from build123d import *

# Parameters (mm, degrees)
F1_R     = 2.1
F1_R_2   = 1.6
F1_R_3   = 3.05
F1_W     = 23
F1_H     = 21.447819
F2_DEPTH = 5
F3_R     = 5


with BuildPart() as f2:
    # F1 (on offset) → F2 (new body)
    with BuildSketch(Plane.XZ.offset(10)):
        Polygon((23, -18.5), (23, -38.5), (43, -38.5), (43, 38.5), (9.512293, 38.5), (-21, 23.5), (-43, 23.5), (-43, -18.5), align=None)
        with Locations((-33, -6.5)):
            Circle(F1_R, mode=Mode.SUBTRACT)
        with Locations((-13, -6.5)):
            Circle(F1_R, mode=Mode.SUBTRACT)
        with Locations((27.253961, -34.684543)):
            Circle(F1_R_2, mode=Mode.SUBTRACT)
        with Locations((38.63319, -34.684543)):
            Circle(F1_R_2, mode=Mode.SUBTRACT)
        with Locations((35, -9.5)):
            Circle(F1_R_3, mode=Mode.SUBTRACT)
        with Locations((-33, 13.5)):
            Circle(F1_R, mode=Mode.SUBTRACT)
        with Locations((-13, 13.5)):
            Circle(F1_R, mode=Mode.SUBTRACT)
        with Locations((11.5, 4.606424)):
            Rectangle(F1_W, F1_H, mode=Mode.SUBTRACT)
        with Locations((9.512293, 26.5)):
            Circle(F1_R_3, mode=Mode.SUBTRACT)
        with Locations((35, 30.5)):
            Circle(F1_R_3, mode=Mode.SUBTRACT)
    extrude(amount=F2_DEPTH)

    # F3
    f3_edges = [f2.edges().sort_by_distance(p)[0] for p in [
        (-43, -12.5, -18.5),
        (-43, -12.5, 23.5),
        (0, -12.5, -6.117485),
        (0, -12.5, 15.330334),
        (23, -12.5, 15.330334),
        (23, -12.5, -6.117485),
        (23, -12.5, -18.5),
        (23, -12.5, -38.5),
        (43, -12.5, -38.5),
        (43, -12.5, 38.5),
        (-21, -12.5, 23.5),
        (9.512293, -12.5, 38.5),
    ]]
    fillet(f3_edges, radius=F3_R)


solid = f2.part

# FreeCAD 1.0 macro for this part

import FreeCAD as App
import Part
import Sketcher


def edges_at(feature, points):
    """Names of the edges that pass closest to the given points."""
    edges = feature.Shape.Edges
    near = lambda p: min(range(len(edges)), key=lambda i: edges[i].distToShape(Part.Vertex(*p))[0])
    return sorted({f"Edge{near(p) + 1}" for p in points})


def add_polygon(sketch, points):
    """Adds a closed chain of lines whose ends are joined by coincident constraints."""
    first, n = sketch.GeometryCount, len(points)
    for a, b in zip(points, points[1:] + points[:1]):
        sketch.addGeometry(Part.LineSegment(App.Vector(*a, 0), App.Vector(*b, 0)), False)
    for i in range(n):
        sketch.addConstraint(Sketcher.Constraint("Coincident", first + i, 2, first + (i + 1) % n, 1))

doc = App.newDocument("Part")
params = doc.addObject("Spreadsheet::Sheet", "Params")
for row, (alias, value) in enumerate([
    ("sketch1_diameter", "4.2 mm"),
    ("sketch1_diameter2", "3.2 mm"),
    ("sketch1_diameter3", "6.1 mm"),
    ("sketch1_width", "20 mm"),
    ("sketch1_width2", "22 mm"),
    ("pad1_length", "5 mm"),
    ("fillet_radius", "5 mm"),
], start=1):
    params.set(f"A{row}", alias)
    params.set(f"B{row}", "=" + value)
    params.setAlias(f"B{row}", alias)

body = doc.addObject("PartDesign::Body", "Body")

# Sketch on XZ plane
sketch1 = doc.addObject("Sketcher::SketchObject", "Sketch")
body.addObject(sketch1)
sketch1.AttachmentSupport = (doc.XZ_Plane, [""])
sketch1.MapMode = "FlatFace"
sketch1.AttachmentOffset = App.Placement(App.Vector(0, 0, 10), App.Rotation())
add_polygon(sketch1, [(23, -18.5), (23, -38.5), (43, -38.5), (43, 38.5), (9.5, 38.5), (-21, 23.5), (-43, 23.5), (-43, -18.5)])  # lines 0-7
sketch1.addGeometry(Part.Circle(App.Vector(-33, -6.5, 0), App.Vector(0, 0, 1), 2.1), False)  # 8
sketch1.addGeometry(Part.Circle(App.Vector(-13, -6.5, 0), App.Vector(0, 0, 1), 2.1), False)  # 9
sketch1.addGeometry(Part.Circle(App.Vector(27.3, -34.7, 0), App.Vector(0, 0, 1), 1.6), False)  # 10
sketch1.addGeometry(Part.Circle(App.Vector(38.6, -34.7, 0), App.Vector(0, 0, 1), 1.6), False)  # 11
sketch1.addGeometry(Part.Circle(App.Vector(35, -9.5, 0), App.Vector(0, 0, 1), 3), False)  # 12
sketch1.addGeometry(Part.Circle(App.Vector(-33, 13.5, 0), App.Vector(0, 0, 1), 2.1), False)  # 13
sketch1.addGeometry(Part.Circle(App.Vector(-13, 13.5, 0), App.Vector(0, 0, 1), 2.1), False)  # 14
add_polygon(sketch1, [(23, -6.1), (0, -6.1), (0, 15.3), (23, 15.3)])  # lines 15-18
sketch1.addGeometry(Part.Circle(App.Vector(9.5, 26.5, 0), App.Vector(0, 0, 1), 3), False)  # 19
sketch1.addGeometry(Part.Circle(App.Vector(35, 30.5, 0), App.Vector(0, 0, 1), 3), False)  # 20
sketch1.addConstraint([
    Sketcher.Constraint("Vertical", 0),
    Sketcher.Constraint("Horizontal", 1),
    Sketcher.Constraint("Vertical", 2),
    Sketcher.Constraint("Horizontal", 3),
    Sketcher.Constraint("Horizontal", 5),
    Sketcher.Constraint("Vertical", 6),
    Sketcher.Constraint("Horizontal", 7),
    Sketcher.Constraint("Horizontal", 15),
    Sketcher.Constraint("Vertical", 16),
    Sketcher.Constraint("Horizontal", 17),
    Sketcher.Constraint("Vertical", 18),
    Sketcher.Constraint("Equal", 8, 9),
    Sketcher.Constraint("Equal", 10, 11),
    Sketcher.Constraint("Equal", 9, 13),
    Sketcher.Constraint("Equal", 13, 14),
    Sketcher.Constraint("Equal", 12, 19),
    Sketcher.Constraint("Equal", 19, 20),
    Sketcher.Constraint("PointOnObject", 15, 2, -2),
    Sketcher.Constraint("Horizontal", 8, 3, 9, 3),
    Sketcher.Constraint("Horizontal", 10, 3, 11, 3),
    Sketcher.Constraint("Horizontal", 13, 3, 14, 3),
    Sketcher.Constraint("Vertical", 8, 3, 13, 3),
    Sketcher.Constraint("Vertical", 9, 3, 14, 3),
    Sketcher.Constraint("Vertical", 12, 3, 20, 3),
    Sketcher.Constraint("Vertical", 19, 3, 3, 2),
    Sketcher.Constraint("Vertical", 7, 2, 17, 2),
    Sketcher.Constraint("Equal", 1, 0),
    Sketcher.Constraint("Diameter", 8, 4.2),
    Sketcher.Constraint("Diameter", 10, 3.2),
    Sketcher.Constraint("Diameter", 12, 6.1),
    Sketcher.Constraint("DistanceX", 1, 1, 1, 2, 20.0),
    Sketcher.Constraint("DistanceX", 5, 2, 5, 1, 22.0),
    Sketcher.Constraint("DistanceX", 7, 1, 7, 2, 66.0),
    Sketcher.Constraint("DistanceX", 15, 2, 15, 1, 23.0),
    Sketcher.Constraint("DistanceY", 2, 1, 2, 2, 77.0),
    Sketcher.Constraint("DistanceY", 6, 2, 6, 1, 42.0),
    Sketcher.Constraint("Distance", 4, 34.0),
    Sketcher.Constraint("DistanceX", 8, 3, -1, 1, 33.0),
    Sketcher.Constraint("DistanceX", 9, 3, -1, 1, 13.0),
    Sketcher.Constraint("DistanceX", -1, 1, 12, 3, 35.0),
    Sketcher.Constraint("DistanceY", 12, 3, 9, 3, 3.0),
    Sketcher.Constraint("DistanceY", 8, 3, 13, 3, 20.0),
    Sketcher.Constraint("DistanceY", 14, 3, 19, 3, 13.0),
    Sketcher.Constraint("DistanceY", 19, 3, 20, 3, 4.0),
    Sketcher.Constraint("DistanceY", 0, 2, 12, 3, 29.0),
    Sketcher.Constraint("DistanceY", 8, 3, -1, 1, 6.5),
    Sketcher.Constraint("DistanceY", 16, 1, 16, 2, 21.447819),
    Sketcher.Constraint("DistanceX", -1, 1, 10, 3, 27.253961),
    Sketcher.Constraint("DistanceX", -1, 1, 11, 3, 38.63319),
    Sketcher.Constraint("DistanceY", 10, 3, -1, 1, 34.684543),
    Sketcher.Constraint("DistanceY", 15, 2, -1, 1, 6.117485),
])
sketch1.setExpression("Constraints[39]", "Params.sketch1_diameter")
sketch1.setExpression("Constraints[40]", "Params.sketch1_diameter2")
sketch1.setExpression("Constraints[41]", "Params.sketch1_diameter3")
sketch1.setExpression("Constraints[42]", "Params.sketch1_width")
sketch1.setExpression("Constraints[43]", "Params.sketch1_width2")
pad1 = doc.addObject("PartDesign::Pad", "Pad")
body.addObject(pad1)
pad1.Profile = sketch1
pad1.setExpression("Length", "Params.pad1_length")
doc.recompute()

fillet = doc.addObject("PartDesign::Fillet", "Fillet")
body.addObject(fillet)
fillet.Base = (pad1, edges_at(pad1, [
    (-43, -12.5, -18.5),
    (-43, -12.5, 23.5),
    (0, -12.5, -6.117),
    (0, -12.5, 15.33),
    (23, -12.5, 15.33),
    (23, -12.5, -6.117),
    (23, -12.5, -18.5),
    (23, -12.5, -38.5),
    (43, -12.5, -38.5),
    (43, -12.5, 38.5),
    (-21, -12.5, 23.5),
    (9.512, -12.5, 38.5),
]))
fillet.setExpression("Radius", "Params.fillet_radius")

doc.recompute()
